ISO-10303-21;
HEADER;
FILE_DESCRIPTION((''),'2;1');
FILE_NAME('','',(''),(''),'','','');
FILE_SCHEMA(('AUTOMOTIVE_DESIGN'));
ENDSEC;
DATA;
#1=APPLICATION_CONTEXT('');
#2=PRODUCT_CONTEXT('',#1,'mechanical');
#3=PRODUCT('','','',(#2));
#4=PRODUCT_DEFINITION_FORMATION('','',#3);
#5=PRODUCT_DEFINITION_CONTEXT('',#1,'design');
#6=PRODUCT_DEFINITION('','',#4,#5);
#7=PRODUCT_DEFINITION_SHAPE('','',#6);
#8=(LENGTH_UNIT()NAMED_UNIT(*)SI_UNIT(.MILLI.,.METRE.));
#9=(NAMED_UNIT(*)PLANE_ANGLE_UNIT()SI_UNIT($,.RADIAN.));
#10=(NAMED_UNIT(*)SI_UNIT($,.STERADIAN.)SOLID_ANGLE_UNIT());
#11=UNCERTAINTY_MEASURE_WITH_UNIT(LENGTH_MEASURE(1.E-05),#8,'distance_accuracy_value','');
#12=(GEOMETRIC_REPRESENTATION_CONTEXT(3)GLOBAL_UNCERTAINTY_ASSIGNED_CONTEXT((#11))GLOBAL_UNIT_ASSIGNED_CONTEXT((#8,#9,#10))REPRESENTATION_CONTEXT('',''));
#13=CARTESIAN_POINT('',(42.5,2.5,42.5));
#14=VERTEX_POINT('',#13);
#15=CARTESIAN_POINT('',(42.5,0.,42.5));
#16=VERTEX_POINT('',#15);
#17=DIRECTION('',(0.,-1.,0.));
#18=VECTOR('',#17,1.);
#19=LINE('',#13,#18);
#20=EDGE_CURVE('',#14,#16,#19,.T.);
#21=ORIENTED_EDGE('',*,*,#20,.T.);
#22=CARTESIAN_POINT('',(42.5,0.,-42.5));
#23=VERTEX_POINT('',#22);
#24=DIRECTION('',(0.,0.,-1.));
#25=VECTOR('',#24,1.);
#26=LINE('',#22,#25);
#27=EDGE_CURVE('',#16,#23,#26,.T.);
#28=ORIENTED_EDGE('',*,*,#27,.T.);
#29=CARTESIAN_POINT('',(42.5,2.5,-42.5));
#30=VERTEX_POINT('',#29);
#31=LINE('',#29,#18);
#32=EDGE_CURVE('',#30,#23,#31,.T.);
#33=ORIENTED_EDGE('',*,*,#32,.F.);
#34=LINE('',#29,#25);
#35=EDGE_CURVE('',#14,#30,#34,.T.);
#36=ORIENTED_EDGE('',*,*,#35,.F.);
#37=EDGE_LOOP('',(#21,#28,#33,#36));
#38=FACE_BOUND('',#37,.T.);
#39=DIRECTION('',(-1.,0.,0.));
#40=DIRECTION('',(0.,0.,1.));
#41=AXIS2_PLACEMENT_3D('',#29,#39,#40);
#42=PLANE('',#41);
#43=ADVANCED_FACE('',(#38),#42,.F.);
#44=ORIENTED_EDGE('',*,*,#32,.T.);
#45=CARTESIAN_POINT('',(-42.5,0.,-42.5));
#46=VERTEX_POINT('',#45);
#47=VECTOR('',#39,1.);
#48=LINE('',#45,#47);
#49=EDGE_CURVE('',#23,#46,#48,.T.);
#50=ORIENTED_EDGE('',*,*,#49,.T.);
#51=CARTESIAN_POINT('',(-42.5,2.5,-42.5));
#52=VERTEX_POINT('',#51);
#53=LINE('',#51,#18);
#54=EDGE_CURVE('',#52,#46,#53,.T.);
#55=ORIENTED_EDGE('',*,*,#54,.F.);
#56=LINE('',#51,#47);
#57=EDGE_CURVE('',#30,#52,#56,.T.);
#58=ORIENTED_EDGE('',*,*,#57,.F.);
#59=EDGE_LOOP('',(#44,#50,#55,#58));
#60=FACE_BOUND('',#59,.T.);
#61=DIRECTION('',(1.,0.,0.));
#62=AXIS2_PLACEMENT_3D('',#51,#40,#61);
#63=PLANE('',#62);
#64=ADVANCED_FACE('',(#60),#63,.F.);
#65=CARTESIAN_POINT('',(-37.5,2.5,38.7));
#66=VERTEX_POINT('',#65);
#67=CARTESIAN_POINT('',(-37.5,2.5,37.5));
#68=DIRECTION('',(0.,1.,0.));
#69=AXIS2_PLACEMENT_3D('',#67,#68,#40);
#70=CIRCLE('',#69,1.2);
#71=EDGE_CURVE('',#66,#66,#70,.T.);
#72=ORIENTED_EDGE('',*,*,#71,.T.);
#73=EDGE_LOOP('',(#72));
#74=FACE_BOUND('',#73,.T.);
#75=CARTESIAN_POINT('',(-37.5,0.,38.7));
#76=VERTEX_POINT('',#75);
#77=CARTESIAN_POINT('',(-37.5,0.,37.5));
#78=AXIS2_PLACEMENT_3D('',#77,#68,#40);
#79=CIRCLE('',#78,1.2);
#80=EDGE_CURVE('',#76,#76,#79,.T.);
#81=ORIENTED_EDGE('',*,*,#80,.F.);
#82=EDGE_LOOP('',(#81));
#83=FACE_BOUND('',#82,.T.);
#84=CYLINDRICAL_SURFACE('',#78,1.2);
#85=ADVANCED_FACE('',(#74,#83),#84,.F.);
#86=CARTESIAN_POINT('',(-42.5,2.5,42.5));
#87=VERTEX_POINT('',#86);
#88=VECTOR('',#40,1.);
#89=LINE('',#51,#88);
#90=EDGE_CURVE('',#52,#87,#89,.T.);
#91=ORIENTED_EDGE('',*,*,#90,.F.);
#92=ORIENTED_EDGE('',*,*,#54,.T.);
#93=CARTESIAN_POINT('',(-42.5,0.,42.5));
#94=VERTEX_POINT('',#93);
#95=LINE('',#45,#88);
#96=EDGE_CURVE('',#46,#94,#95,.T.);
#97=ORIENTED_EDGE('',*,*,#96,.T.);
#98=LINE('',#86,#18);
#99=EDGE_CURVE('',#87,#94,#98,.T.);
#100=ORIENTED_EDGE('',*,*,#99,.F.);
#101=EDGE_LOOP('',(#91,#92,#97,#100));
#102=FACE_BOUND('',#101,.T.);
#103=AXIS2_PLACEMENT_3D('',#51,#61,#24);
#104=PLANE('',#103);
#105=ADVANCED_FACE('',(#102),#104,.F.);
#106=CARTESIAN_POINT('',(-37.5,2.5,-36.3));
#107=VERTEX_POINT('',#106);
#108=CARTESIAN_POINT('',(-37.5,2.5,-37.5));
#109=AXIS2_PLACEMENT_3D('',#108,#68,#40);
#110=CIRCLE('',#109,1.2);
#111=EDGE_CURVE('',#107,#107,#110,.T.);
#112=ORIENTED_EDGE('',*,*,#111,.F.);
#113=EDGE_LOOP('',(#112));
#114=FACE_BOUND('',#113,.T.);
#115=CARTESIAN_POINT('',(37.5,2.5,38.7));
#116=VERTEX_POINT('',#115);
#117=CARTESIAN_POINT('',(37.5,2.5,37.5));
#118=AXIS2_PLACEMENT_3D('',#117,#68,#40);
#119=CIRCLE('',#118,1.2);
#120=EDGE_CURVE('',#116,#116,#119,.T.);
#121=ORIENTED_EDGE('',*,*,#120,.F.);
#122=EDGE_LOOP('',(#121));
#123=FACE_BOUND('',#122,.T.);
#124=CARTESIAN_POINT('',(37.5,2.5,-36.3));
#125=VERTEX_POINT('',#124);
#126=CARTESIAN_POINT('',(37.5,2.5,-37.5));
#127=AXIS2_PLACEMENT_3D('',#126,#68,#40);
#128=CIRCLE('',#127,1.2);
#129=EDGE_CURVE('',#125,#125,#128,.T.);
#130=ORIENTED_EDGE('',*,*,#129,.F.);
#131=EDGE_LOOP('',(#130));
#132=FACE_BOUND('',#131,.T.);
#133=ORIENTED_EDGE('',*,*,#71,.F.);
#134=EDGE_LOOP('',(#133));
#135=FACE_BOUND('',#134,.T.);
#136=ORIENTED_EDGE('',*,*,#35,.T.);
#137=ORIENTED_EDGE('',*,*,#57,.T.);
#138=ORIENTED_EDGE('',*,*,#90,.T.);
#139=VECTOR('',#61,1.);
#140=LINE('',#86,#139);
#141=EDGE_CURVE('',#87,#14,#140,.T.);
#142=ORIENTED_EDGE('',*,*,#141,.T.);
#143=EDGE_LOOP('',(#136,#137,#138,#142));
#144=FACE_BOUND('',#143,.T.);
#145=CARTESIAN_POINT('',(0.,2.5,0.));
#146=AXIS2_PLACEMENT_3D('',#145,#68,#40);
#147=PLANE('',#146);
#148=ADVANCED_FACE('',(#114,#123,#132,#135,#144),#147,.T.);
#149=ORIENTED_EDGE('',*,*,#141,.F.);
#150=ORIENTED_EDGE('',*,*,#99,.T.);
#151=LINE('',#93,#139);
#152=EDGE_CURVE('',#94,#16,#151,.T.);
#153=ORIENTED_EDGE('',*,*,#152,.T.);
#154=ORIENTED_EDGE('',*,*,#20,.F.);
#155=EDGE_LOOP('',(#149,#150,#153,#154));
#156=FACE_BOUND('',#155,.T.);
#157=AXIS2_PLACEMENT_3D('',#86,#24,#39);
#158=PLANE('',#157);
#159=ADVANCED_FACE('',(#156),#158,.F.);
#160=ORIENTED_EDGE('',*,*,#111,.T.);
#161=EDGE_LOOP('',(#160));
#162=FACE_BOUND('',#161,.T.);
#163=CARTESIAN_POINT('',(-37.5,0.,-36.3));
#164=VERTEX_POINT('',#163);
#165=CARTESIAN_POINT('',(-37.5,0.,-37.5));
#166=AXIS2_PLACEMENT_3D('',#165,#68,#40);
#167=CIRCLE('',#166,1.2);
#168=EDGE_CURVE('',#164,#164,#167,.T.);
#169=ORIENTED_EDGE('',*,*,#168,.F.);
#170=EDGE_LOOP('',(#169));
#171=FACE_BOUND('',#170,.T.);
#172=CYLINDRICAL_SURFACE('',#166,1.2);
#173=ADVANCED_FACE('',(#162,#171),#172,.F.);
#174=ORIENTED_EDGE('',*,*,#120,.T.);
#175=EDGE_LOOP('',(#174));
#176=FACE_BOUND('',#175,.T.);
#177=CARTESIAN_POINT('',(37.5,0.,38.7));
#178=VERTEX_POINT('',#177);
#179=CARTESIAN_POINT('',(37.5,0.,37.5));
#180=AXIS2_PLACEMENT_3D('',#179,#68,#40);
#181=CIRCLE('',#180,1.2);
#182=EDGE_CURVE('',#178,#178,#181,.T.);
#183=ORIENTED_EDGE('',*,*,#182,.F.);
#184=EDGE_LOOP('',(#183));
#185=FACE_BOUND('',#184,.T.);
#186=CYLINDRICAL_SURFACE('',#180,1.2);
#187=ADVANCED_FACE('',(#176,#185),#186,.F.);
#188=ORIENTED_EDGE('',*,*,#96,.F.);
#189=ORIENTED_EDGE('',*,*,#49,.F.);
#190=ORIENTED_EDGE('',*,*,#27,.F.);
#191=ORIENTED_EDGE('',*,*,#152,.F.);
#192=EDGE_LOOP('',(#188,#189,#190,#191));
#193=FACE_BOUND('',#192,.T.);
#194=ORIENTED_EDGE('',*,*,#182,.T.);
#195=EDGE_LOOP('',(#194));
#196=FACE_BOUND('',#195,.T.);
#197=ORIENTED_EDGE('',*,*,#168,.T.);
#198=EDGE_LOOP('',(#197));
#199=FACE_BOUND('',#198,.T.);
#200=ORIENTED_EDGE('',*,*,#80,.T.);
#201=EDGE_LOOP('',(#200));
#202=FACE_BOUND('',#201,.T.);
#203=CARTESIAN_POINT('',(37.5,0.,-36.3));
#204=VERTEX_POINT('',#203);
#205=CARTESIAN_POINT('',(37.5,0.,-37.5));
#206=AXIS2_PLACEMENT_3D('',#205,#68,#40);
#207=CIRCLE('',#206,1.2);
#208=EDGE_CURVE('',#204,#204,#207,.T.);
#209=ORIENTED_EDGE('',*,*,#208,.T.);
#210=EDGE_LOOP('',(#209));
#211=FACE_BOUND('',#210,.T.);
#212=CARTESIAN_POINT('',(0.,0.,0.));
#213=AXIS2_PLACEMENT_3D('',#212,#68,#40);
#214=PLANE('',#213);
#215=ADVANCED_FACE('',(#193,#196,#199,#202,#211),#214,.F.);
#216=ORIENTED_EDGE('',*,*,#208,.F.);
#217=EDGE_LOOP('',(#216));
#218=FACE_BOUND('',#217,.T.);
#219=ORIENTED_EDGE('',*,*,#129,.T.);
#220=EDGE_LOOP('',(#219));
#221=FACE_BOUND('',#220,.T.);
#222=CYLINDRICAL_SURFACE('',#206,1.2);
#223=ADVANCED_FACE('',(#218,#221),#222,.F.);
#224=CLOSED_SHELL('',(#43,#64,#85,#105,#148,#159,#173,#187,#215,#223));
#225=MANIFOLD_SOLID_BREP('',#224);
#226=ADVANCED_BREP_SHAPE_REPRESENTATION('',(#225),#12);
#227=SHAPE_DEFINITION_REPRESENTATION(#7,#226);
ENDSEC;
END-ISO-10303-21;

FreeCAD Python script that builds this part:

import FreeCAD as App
import Part
import Sketcher

V = App.Vector


def add_polygon(sketch, points):
    """Adds a closed chain of lines whose ends are joined by coincident constraints."""
    first, n = sketch.GeometryCount, len(points)
    for a, b in zip(points, points[1:] + points[:1]):
        sketch.addGeometry(Part.LineSegment(App.Vector(*a, 0), App.Vector(*b, 0)), False)
    for i in range(n):
        sketch.addConstraint(Sketcher.Constraint("Coincident", first + i, 2, first + (i + 1) % n, 1))

doc = App.newDocument("Part")
body = doc.addObject("PartDesign::Body", "Body")

sketch1 = doc.addObject("Sketcher::SketchObject", "Sketch")
body.addObject(sketch1)
sketch1.AttachmentSupport = (doc.XZ_Plane, [""])
sketch1.MapMode = "FlatFace"
add_polygon(sketch1, [(-42, -42), (-42, 42), (42, 42), (42, -42)])
sketch1.addConstraint([
    Sketcher.Constraint("Vertical", 0),
    Sketcher.Constraint("Horizontal", 1),
    Sketcher.Constraint("Vertical", 2),
    Sketcher.Constraint("Horizontal", 3),
    Sketcher.Constraint("Symmetric", 0, 2, 2, 2, -1, 1),
    Sketcher.Constraint("Equal", 3, 0),
    Sketcher.Constraint("DistanceX", 1, 1, 1, 2, 85.0),
])
pad1 = doc.addObject("PartDesign::Pad", "Pad")
body.addObject(pad1)
pad1.Profile = sketch1
pad1.Length = 2.5
pad1.Reversed = True

sketch2 = doc.addObject("Sketcher::SketchObject", "Sketch001")
body.addObject(sketch2)
sketch2.AttachmentSupport = (doc.XZ_Plane, [""])
sketch2.MapMode = "FlatFace"
sketch2.AttachmentOffset = App.Placement(V(0, 0, -2.5), App.Rotation())
sketch2.addGeometry([
    Part.Circle(V(-37.5, -37.5, 0), V(0, 0, 1), 1.2),
    Part.Circle(V(37.5, -37.5, 0), V(0, 0, 1), 1.2),
    Part.Circle(V(37.5, 37.5, 0), V(0, 0, 1), 1.2),
    Part.Circle(V(-37.5, 37.5, 0), V(0, 0, 1), 1.2),
], False)
sketch2.addConstraint([
    Sketcher.Constraint("Equal", 0, 1),
    Sketcher.Constraint("Equal", 1, 2),
    Sketcher.Constraint("Equal", 2, 3),
    Sketcher.Constraint("Symmetric", 0, 3, 2, 3, -1, 1),
    Sketcher.Constraint("Symmetric", 1, 3, 3, 3, -1, 1),
    Sketcher.Constraint("Symmetric", 0, 3, 1, 3, -2),
    Sketcher.Constraint("Diameter", 0, 2.4),
    Sketcher.Constraint("DistanceX", 0, 3, 1, 3, 75.0),
    Sketcher.Constraint("DistanceY", 1, 3, 2, 3, 75.0),
])
pocket1 = doc.addObject("PartDesign::Pocket", "Pocket")
body.addObject(pocket1)
pocket1.Profile = sketch2
pocket1.Type = "ThroughAll"
pocket1.Reversed = True

doc.recompute()
